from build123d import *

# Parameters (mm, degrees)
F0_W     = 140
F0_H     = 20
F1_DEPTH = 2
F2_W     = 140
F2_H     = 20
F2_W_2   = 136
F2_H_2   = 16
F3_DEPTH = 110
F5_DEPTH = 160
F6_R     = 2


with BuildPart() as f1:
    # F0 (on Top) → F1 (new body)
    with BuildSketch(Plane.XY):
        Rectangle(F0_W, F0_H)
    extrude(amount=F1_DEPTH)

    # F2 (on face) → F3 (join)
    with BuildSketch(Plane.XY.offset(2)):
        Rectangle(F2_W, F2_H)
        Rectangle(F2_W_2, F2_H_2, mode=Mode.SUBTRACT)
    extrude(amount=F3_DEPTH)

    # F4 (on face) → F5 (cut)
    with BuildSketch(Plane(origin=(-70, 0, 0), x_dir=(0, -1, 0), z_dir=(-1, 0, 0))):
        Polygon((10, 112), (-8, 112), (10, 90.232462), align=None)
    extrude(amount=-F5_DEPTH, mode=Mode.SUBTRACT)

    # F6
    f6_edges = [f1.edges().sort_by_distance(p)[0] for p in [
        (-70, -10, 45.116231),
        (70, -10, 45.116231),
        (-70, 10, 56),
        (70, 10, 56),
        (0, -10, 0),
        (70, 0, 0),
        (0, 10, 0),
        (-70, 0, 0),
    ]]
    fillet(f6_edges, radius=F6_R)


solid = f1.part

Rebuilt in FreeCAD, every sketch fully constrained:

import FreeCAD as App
import Part
import Sketcher

V = App.Vector
Q = App.Units.Quantity


def edges_at(feature, points):
    """Names of the edges that pass closest to the given points."""
    edges = feature.Shape.Edges
    near = lambda p: min(range(len(edges)), key=lambda i: edges[i].distToShape(Part.Vertex(*p))[0])
    return sorted({f"Edge{near(p) + 1}" for p in points})

doc = App.newDocument("Part")
body = doc.addObject("PartDesign::Body", "Body")

# Sketch on XY plane
sketch1 = body.newObject("Sketcher::SketchObject", "Sketch")
sketch1.AttachmentSupport = (doc.getObject("XY_Plane"), [""])
sketch1.MapMode = "FlatFace"
sketch1.addGeometry([
    Part.LineSegment(V(-70, 10, 0), V(-70, -10, 0)),
    Part.LineSegment(V(-70, -10, 0), V(70, -10, 0)),
    Part.LineSegment(V(70, -10, 0), V(70, 10, 0)),
    Part.LineSegment(V(70, 10, 0), V(-70, 10, 0)),
], False)
sketch1.addConstraint([
    Sketcher.Constraint("Coincident", 0, 2, 1, 1),
    Sketcher.Constraint("Coincident", 1, 2, 2, 1),
    Sketcher.Constraint("Coincident", 2, 2, 3, 1),
    Sketcher.Constraint("Coincident", 3, 2, 0, 1),
    Sketcher.Constraint("Vertical", 0),
    Sketcher.Constraint("Horizontal", 1),
    Sketcher.Constraint("Vertical", 2),
    Sketcher.Constraint("Horizontal", 3),
    Sketcher.Constraint("Symmetric", 0, 2, 2, 2, -1, 1),
    Sketcher.Constraint("DistanceX", 1, 1, 1, 2, Q("140 mm")),
    Sketcher.Constraint("DistanceY", 0, 2, 0, 1, Q("20 mm")),
])
pad1 = body.newObject("PartDesign::Pad", "Pad")
pad1.Profile = sketch1
pad1.Length = 2

# Sketch on XY plane
sketch2 = body.newObject("Sketcher::SketchObject", "Sketch001")
sketch2.AttachmentSupport = (doc.getObject("XY_Plane"), [""])
sketch2.MapMode = "FlatFace"
sketch2.AttachmentOffset = App.Placement(V(0, 0, 2), App.Rotation())
sketch2.addGeometry([
    Part.LineSegment(V(-70, 10, 0), V(-70, -10, 0)),  # 0
    Part.LineSegment(V(-70, -10, 0), V(70, -10, 0)),  # 1
    Part.LineSegment(V(70, -10, 0), V(70, 10, 0)),  # 2
    Part.LineSegment(V(70, 10, 0), V(-70, 10, 0)),  # 3
    Part.LineSegment(V(68, -8, 0), V(-68, -8, 0)),  # 4
    Part.LineSegment(V(-68, -8, 0), V(-68, 8, 0)),  # 5
    Part.LineSegment(V(-68, 8, 0), V(68, 8, 0)),  # 6
    Part.LineSegment(V(68, 8, 0), V(68, -8, 0)),  # 7
], False)
sketch2.addConstraint([
    Sketcher.Constraint("Coincident", 0, 2, 1, 1),
    Sketcher.Constraint("Coincident", 1, 2, 2, 1),
    Sketcher.Constraint("Coincident", 2, 2, 3, 1),
    Sketcher.Constraint("Coincident", 3, 2, 0, 1),
    Sketcher.Constraint("Coincident", 4, 2, 5, 1),
    Sketcher.Constraint("Coincident", 5, 2, 6, 1),
    Sketcher.Constraint("Coincident", 6, 2, 7, 1),
    Sketcher.Constraint("Coincident", 7, 2, 4, 1),
    Sketcher.Constraint("Vertical", 0),
    Sketcher.Constraint("Horizontal", 1),
    Sketcher.Constraint("Vertical", 2),
    Sketcher.Constraint("Horizontal", 3),
    Sketcher.Constraint("Horizontal", 4),
    Sketcher.Constraint("Vertical", 5),
    Sketcher.Constraint("Horizontal", 6),
    Sketcher.Constraint("Vertical", 7),
    Sketcher.Constraint("Symmetric", 0, 2, 2, 2, -1, 1),
    Sketcher.Constraint("Symmetric", 4, 2, 6, 2, -1, 1),
    Sketcher.Constraint("DistanceX", 1, 1, 1, 2, Q("140 mm")),
    Sketcher.Constraint("DistanceX", 4, 2, 4, 1, Q("136 mm")),
    Sketcher.Constraint("DistanceY", 0, 2, 0, 1, Q("20 mm")),
    Sketcher.Constraint("DistanceY", 5, 1, 5, 2, Q("16 mm")),
])
pad2 = body.newObject("PartDesign::Pad", "Pad001")
pad2.Profile = sketch2
pad2.Length = 110

# Sketch on YZ plane
sketch3 = body.newObject("Sketcher::SketchObject", "Sketch002")
sketch3.AttachmentSupport = (doc.getObject("YZ_Plane"), [""])
sketch3.MapMode = "FlatFace"
sketch3.AttachmentOffset = App.Placement(V(0, 0, -70), App.Rotation())
sketch3.addGeometry([
    Part.LineSegment(V(-10, 112, 0), V(8, 112, 0)),
    Part.LineSegment(V(8, 112, 0), V(-10, 90, 0)),
    Part.LineSegment(V(-10, 90, 0), V(-10, 112, 0)),
], False)
sketch3.addConstraint([
    Sketcher.Constraint("Coincident", 0, 2, 1, 1),
    Sketcher.Constraint("Coincident", 1, 2, 2, 1),
    Sketcher.Constraint("Coincident", 2, 2, 0, 1),
    Sketcher.Constraint("Horizontal", 0),
    Sketcher.Constraint("Vertical", 2),
    Sketcher.Constraint("DistanceX", 0, 1, 0, 2, Q("18 mm")),
    Sketcher.Constraint("DistanceX", -1, 1, 0, 2, Q("8 mm")),
    Sketcher.Constraint("DistanceY", -1, 1, 0, 2, Q("112 mm")),
    Sketcher.Constraint("DistanceY", 2, 1, 2, 2, Q("21.767538 mm")),
])
pocket1 = body.newObject("PartDesign::Pocket", "Pocket")
pocket1.Profile = sketch3
pocket1.Length = 160
pocket1.Reversed = True
doc.recompute()

fillet = body.newObject("PartDesign::Fillet", "Fillet")
fillet.Base = (pocket1, edges_at(pocket1, [
    (-70, -10, 45.116),
    (70, -10, 45.116),
    (-70, 10, 56),
    (70, 10, 56),
    (0, -10, 0),
    (70, 0, 0),
    (0, 10, 0),
    (-70, 0, 0),
]))
fillet.Radius = 2

doc.recompute()
